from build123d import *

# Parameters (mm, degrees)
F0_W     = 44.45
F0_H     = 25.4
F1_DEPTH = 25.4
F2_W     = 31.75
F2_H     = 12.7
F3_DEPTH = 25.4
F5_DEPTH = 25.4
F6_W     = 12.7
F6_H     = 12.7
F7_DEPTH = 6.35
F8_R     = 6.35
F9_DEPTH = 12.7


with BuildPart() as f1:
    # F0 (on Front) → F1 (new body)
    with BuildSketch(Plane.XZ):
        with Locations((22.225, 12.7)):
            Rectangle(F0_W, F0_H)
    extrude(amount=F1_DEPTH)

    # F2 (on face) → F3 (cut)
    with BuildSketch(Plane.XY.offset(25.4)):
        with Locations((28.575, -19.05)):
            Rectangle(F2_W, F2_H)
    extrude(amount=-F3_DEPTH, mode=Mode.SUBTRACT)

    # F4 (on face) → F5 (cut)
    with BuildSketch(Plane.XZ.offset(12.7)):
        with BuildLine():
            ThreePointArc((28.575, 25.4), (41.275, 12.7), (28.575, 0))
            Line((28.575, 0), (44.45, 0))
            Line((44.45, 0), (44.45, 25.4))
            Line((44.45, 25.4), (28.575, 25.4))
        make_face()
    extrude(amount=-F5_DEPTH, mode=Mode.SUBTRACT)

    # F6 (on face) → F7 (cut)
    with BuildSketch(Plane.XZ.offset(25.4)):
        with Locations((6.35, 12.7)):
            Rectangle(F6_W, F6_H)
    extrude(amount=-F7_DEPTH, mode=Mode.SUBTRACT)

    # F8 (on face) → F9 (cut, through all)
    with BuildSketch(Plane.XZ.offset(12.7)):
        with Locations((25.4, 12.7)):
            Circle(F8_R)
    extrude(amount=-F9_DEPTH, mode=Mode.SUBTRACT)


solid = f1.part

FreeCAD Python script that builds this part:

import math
import FreeCAD as App
import Part
import Sketcher

V = App.Vector
Q = App.Units.Quantity

doc = App.newDocument("Part")
body = doc.addObject("PartDesign::Body", "Body")

# Sketch on XZ plane
sketch1 = body.newObject("Sketcher::SketchObject", "Sketch")
sketch1.AttachmentSupport = (doc.getObject("XZ_Plane"), [""])
sketch1.MapMode = "FlatFace"
sketch1.addGeometry([
    Part.LineSegment(V(0, 25, 0), V(0, 0, 0)),
    Part.LineSegment(V(0, 0, 0), V(44, 0, 0)),
    Part.LineSegment(V(44, 0, 0), V(44, 25, 0)),
    Part.LineSegment(V(44, 25, 0), V(0, 25, 0)),
], False)
sketch1.addConstraint([
    Sketcher.Constraint("Coincident", 0, 2, 1, 1),
    Sketcher.Constraint("Coincident", 1, 2, 2, 1),
    Sketcher.Constraint("Coincident", 2, 2, 3, 1),
    Sketcher.Constraint("Coincident", 3, 2, 0, 1),
    Sketcher.Constraint("Vertical", 0),
    Sketcher.Constraint("Horizontal", 1),
    Sketcher.Constraint("Vertical", 2),
    Sketcher.Constraint("Horizontal", 3),
    Sketcher.Constraint("Coincident", 0, 2, -1, 1),
    Sketcher.Constraint("DistanceY", 0, 2, 0, 1, Q("1 in")),
    Sketcher.Constraint("DistanceX", 1, 1, 1, 2, Q("1.75 in")),
])
pad1 = body.newObject("PartDesign::Pad", "Pad")
pad1.Profile = sketch1
pad1.Length = Q("1 in")

# Sketch on XY plane
sketch2 = body.newObject("Sketcher::SketchObject", "Sketch001")
sketch2.AttachmentSupport = (doc.getObject("XY_Plane"), [""])
sketch2.MapMode = "FlatFace"
sketch2.AttachmentOffset = App.Placement(V(0, 0, 1 * 25.4), App.Rotation())
sketch2.addGeometry([
    Part.LineSegment(V(13, -13, 0), V(13, -25, 0)),
    Part.LineSegment(V(13, -25, 0), V(44, -25, 0)),
    Part.LineSegment(V(44, -25, 0), V(44, -13, 0)),
    Part.LineSegment(V(44, -13, 0), V(13, -13, 0)),
], False)
sketch2.addConstraint([
    Sketcher.Constraint("Coincident", 0, 2, 1, 1),
    Sketcher.Constraint("Coincident", 1, 2, 2, 1),
    Sketcher.Constraint("Coincident", 2, 2, 3, 1),
    Sketcher.Constraint("Coincident", 3, 2, 0, 1),
    Sketcher.Constraint("Vertical", 0),
    Sketcher.Constraint("Horizontal", 1),
    Sketcher.Constraint("Vertical", 2),
    Sketcher.Constraint("Horizontal", 3),
    Sketcher.Constraint("DistanceY", 0, 2, 0, 1, Q("0.5 in")),
    Sketcher.Constraint("DistanceY", 0, 2, -1, 1, Q("1 in")),
    Sketcher.Constraint("DistanceX", 1, 1, 1, 2, Q("1.25 in")),
    Sketcher.Constraint("DistanceX", -1, 1, 0, 2, Q("0.5 in")),
])
pocket1 = body.newObject("PartDesign::Pocket", "Pocket")
pocket1.Profile = sketch2
pocket1.Length = Q("1 in")

# Sketch on XZ plane
sketch3 = body.newObject("Sketcher::SketchObject", "Sketch002")
sketch3.AttachmentSupport = (doc.getObject("XZ_Plane"), [""])
sketch3.MapMode = "FlatFace"
sketch3.AttachmentOffset = App.Placement(V(0, 0, 0.5 * 25.4), App.Rotation())
sketch3.addGeometry([
    Part.ArcOfCircle(Part.Circle(V(29, 13, 0), V(0, 0, 1), 13), math.radians(-90), math.radians(90)),
    Part.LineSegment(V(29, 0, 0), V(44, 0, 0)),
    Part.LineSegment(V(44, 0, 0), V(44, 25, 0)),
    Part.LineSegment(V(44, 25, 0), V(29, 25, 0)),
], False)
sketch3.addConstraint([
    Sketcher.Constraint("Tangent", 0, 1, 1, 1),
    Sketcher.Constraint("Coincident", 1, 2, 2, 1),
    Sketcher.Constraint("Coincident", 2, 2, 3, 1),
    Sketcher.Constraint("Tangent", 3, 2, 0, 2),
    Sketcher.Constraint("Horizontal", 1),
    Sketcher.Constraint("Vertical", 2),
    Sketcher.Constraint("Horizontal", 3),
    Sketcher.Constraint("PointOnObject", 0, 1, -1),
    Sketcher.Constraint("Radius", 0, Q("0.5 in")),
    Sketcher.Constraint("DistanceX", 1, 1, 1, 2, Q("0.625 in")),
    Sketcher.Constraint("DistanceX", -1, 1, 1, 2, Q("1.75 in")),
])
pocket2 = body.newObject("PartDesign::Pocket", "Pocket001")
pocket2.Profile = sketch3
pocket2.Length = Q("1 in")

# Sketch on XZ plane
sketch4 = body.newObject("Sketcher::SketchObject", "Sketch003")
sketch4.AttachmentSupport = (doc.getObject("XZ_Plane"), [""])
sketch4.MapMode = "FlatFace"
sketch4.AttachmentOffset = App.Placement(V(0, 0, 1 * 25.4), App.Rotation())
sketch4.addGeometry([
    Part.LineSegment(V(0, 19, 0), V(0, 6, 0)),
    Part.LineSegment(V(0, 6, 0), V(13, 6, 0)),
    Part.LineSegment(V(13, 6, 0), V(13, 19, 0)),
    Part.LineSegment(V(13, 19, 0), V(0, 19, 0)),
], False)
sketch4.addConstraint([
    Sketcher.Constraint("Coincident", 0, 2, 1, 1),
    Sketcher.Constraint("Coincident", 1, 2, 2, 1),
    Sketcher.Constraint("Coincident", 2, 2, 3, 1),
    Sketcher.Constraint("Coincident", 3, 2, 0, 1),
    Sketcher.Constraint("Vertical", 0),
    Sketcher.Constraint("Horizontal", 1),
    Sketcher.Constraint("Vertical", 2),
    Sketcher.Constraint("Horizontal", 3),
    Sketcher.Constraint("PointOnObject", 0, 2, -2),
    Sketcher.Constraint("Equal", 3, 0),
    Sketcher.Constraint("DistanceX", 1, 1, 1, 2, Q("0.5 in")),
    Sketcher.Constraint("DistanceY", -1, 1, 0, 2, Q("0.25 in")),
])
pocket3 = body.newObject("PartDesign::Pocket", "Pocket002")
pocket3.Profile = sketch4
pocket3.Length = Q("0.25 in")

# Sketch on XZ plane
sketch5 = body.newObject("Sketcher::SketchObject", "Sketch004")
sketch5.AttachmentSupport = (doc.getObject("XZ_Plane"), [""])
sketch5.MapMode = "FlatFace"
sketch5.AttachmentOffset = App.Placement(V(0, 0, 0.5 * 25.4), App.Rotation())
sketch5.addGeometry(Part.Circle(V(25, 13, 0), V(0, 0, 1), 6), False)
sketch5.addConstraint([
    Sketcher.Constraint("Diameter", 0, Q("0.5 in")),
    Sketcher.Constraint("DistanceX", -1, 1, 0, 3, Q("1 in")),
    Sketcher.Constraint("DistanceY", -1, 1, 0, 3, Q("0.5 in")),
])
pocket4 = body.newObject("PartDesign::Pocket", "Pocket003")
pocket4.Profile = sketch5
pocket4.Type = "ThroughAll"

doc.recompute()
